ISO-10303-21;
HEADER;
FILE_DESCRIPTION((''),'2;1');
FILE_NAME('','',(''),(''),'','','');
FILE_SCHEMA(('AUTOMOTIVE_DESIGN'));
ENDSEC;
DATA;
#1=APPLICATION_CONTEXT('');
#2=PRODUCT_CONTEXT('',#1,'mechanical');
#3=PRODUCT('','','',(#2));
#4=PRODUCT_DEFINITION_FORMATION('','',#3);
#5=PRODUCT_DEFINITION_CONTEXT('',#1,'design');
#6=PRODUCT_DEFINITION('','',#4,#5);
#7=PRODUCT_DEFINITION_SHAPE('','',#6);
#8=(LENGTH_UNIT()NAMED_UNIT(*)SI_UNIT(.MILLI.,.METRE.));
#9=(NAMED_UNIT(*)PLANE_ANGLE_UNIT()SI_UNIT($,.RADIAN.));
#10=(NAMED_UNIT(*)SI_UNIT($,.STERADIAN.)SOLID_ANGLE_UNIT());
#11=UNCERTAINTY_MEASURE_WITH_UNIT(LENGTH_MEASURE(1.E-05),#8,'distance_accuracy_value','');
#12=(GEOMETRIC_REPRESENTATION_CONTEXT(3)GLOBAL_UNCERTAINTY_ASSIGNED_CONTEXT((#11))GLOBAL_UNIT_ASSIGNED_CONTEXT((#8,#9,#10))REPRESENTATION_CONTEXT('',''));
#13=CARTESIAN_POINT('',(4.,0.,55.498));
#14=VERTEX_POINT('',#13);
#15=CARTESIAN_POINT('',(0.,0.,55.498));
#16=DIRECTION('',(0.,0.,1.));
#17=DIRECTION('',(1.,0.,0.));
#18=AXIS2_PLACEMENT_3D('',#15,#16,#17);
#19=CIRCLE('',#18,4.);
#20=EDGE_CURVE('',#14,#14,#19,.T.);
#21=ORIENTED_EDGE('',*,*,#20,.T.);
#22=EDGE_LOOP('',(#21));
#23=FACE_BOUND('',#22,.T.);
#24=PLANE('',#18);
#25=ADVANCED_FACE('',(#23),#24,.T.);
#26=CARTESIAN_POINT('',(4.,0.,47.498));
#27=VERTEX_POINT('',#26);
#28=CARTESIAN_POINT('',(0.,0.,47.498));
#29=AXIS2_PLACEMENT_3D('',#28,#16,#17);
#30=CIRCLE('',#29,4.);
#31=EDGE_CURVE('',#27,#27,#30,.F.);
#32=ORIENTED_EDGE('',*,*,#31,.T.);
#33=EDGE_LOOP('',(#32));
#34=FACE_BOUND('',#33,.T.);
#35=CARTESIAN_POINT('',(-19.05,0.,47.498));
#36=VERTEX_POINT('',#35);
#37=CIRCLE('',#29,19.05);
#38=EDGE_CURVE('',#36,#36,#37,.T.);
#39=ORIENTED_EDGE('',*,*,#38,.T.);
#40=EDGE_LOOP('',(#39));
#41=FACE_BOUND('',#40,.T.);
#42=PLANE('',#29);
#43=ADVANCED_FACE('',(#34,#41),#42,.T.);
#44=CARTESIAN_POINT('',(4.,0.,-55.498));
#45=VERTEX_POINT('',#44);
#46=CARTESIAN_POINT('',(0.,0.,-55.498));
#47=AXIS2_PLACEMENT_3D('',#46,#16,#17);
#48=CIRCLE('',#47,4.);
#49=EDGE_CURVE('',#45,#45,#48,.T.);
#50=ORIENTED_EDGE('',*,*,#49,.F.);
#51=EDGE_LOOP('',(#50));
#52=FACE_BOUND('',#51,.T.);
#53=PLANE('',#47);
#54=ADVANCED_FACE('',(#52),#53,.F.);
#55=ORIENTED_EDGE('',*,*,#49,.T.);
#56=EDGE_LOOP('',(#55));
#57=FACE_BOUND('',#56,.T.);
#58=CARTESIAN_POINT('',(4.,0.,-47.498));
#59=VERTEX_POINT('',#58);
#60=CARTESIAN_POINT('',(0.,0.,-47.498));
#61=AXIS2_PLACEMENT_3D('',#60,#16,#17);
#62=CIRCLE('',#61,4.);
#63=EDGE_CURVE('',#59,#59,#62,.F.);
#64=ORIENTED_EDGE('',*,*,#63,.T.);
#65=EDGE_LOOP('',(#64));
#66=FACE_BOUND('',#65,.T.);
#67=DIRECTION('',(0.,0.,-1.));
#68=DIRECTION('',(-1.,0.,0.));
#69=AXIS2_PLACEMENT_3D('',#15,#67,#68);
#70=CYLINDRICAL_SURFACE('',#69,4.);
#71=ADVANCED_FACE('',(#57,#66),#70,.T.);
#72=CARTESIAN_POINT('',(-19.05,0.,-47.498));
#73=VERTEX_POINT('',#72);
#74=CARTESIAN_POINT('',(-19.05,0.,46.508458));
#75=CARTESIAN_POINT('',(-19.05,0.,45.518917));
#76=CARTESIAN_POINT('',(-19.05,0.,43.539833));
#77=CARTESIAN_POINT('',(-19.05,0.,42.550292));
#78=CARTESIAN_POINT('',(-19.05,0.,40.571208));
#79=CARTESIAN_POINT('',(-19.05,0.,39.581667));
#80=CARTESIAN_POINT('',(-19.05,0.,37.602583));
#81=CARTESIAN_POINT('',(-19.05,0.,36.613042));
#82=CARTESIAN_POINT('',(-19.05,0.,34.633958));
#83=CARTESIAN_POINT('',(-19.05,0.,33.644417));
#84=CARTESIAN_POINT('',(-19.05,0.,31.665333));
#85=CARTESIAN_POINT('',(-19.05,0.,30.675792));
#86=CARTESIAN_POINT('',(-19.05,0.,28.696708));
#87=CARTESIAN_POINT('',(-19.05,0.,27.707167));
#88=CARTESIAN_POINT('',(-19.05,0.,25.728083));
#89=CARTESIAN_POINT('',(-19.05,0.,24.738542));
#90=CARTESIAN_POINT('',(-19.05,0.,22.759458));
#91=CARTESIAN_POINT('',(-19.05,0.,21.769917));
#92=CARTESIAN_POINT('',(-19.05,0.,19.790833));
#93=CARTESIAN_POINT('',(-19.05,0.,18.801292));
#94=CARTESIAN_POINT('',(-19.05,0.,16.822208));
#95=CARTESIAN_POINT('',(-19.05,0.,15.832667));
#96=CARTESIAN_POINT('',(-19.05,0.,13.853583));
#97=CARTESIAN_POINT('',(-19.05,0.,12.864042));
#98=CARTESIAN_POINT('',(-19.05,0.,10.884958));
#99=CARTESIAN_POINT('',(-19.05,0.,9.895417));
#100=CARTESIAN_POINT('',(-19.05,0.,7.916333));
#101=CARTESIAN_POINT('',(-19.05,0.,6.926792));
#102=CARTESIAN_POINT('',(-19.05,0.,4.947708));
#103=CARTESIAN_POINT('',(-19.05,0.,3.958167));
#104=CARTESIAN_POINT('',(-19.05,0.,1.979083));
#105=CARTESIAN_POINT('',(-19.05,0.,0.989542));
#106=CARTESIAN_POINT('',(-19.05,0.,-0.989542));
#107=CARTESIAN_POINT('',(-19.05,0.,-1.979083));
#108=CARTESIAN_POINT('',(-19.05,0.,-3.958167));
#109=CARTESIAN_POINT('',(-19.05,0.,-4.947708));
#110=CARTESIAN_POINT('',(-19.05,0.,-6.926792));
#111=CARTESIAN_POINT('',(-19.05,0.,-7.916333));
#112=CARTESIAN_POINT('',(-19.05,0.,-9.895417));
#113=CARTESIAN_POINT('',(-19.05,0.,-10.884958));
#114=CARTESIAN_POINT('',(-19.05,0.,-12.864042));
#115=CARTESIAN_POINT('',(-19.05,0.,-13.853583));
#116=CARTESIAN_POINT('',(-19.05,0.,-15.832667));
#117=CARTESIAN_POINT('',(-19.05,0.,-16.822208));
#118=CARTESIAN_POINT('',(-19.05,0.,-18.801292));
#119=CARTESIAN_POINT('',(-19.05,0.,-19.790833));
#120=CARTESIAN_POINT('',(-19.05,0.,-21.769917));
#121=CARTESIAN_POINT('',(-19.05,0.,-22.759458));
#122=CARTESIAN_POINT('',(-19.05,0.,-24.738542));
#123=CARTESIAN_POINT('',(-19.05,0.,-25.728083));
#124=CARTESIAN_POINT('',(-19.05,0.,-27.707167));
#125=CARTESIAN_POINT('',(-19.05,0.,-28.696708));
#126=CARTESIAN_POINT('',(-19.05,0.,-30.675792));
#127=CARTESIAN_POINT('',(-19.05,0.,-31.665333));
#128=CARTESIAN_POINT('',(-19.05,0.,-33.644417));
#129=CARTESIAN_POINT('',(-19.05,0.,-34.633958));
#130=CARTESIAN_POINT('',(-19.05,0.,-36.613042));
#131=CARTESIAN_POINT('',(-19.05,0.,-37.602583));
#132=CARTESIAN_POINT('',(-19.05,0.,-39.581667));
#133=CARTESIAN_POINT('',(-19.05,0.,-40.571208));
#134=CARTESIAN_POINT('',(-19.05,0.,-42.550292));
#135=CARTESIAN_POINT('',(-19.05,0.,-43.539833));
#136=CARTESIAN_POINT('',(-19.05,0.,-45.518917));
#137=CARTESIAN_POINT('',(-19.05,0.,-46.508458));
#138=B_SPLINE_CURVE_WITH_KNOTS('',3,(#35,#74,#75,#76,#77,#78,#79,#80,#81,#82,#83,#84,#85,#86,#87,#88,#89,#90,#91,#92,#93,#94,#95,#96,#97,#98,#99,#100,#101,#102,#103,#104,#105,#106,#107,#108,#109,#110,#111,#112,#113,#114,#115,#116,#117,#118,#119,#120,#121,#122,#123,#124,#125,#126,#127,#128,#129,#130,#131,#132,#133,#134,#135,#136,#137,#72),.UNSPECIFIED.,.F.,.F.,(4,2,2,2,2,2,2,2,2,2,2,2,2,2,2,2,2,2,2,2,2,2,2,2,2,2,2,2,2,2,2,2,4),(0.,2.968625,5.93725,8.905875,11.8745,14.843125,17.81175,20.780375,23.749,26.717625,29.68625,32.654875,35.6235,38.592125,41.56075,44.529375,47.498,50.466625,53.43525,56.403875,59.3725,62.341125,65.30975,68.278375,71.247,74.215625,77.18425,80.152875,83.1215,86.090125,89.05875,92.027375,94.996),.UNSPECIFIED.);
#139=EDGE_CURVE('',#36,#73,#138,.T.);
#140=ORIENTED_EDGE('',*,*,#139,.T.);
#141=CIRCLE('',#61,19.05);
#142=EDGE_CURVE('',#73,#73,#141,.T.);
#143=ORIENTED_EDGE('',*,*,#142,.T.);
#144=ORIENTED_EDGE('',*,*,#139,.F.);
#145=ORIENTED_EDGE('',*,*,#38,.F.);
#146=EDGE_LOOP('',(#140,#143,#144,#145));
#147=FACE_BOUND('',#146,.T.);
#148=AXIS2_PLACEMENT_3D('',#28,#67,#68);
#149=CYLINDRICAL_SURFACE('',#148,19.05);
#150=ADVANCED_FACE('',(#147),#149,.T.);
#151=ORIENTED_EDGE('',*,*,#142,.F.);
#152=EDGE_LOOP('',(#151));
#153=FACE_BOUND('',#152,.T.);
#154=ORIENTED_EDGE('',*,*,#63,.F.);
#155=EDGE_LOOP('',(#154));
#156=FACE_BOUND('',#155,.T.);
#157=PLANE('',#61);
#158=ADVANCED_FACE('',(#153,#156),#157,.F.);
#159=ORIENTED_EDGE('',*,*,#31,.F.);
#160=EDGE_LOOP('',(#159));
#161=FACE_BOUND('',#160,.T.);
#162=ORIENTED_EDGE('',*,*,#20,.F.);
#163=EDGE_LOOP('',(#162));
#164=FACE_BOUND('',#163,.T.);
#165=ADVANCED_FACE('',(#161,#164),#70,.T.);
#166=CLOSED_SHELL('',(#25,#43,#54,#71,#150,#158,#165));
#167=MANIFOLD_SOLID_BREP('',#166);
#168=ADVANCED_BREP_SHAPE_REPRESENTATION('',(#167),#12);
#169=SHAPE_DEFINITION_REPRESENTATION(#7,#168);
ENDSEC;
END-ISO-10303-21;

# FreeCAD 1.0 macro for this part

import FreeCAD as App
import Part
import Sketcher
Q = App.Units.Quantity

doc = App.newDocument("Part")
body = doc.addObject("PartDesign::Body", "Body")

sketch1 = body.newObject("Sketcher::SketchObject", "Sketch")
sketch1.AttachmentSupport = (doc.getObject("XY_Plane"), [""])
sketch1.MapMode = "FlatFace"
sketch1.addGeometry(Part.Circle(App.Vector(0, 0, 0), App.Vector(0, 0, 1), 19), False)
sketch1.addConstraint([
    Sketcher.Constraint("Coincident", 0, 3, -1, 1),
    Sketcher.Constraint("Diameter", 0, Q("1.5 in")),
])
pad1 = body.newObject("PartDesign::Pad", "Pad")
pad1.Profile = sketch1
pad1.Length = Q("3.74 in")
pad1.Midplane = True

sketch2 = body.newObject("Sketcher::SketchObject", "Sketch001")
sketch2.AttachmentSupport = (doc.getObject("XY_Plane"), [""])
sketch2.MapMode = "FlatFace"
sketch2.addGeometry(Part.Circle(App.Vector(0, 0, 0), App.Vector(0, 0, 1), 4), False)
sketch2.addConstraint([
    Sketcher.Constraint("Coincident", 0, 3, -1, 1),
    Sketcher.Constraint("Diameter", 0, Q("8 mm")),
])
pad2 = body.newObject("PartDesign::Pad", "Pad001")
pad2.Profile = sketch2
pad2.Length = 110.996
pad2.Midplane = True

doc.recompute()
